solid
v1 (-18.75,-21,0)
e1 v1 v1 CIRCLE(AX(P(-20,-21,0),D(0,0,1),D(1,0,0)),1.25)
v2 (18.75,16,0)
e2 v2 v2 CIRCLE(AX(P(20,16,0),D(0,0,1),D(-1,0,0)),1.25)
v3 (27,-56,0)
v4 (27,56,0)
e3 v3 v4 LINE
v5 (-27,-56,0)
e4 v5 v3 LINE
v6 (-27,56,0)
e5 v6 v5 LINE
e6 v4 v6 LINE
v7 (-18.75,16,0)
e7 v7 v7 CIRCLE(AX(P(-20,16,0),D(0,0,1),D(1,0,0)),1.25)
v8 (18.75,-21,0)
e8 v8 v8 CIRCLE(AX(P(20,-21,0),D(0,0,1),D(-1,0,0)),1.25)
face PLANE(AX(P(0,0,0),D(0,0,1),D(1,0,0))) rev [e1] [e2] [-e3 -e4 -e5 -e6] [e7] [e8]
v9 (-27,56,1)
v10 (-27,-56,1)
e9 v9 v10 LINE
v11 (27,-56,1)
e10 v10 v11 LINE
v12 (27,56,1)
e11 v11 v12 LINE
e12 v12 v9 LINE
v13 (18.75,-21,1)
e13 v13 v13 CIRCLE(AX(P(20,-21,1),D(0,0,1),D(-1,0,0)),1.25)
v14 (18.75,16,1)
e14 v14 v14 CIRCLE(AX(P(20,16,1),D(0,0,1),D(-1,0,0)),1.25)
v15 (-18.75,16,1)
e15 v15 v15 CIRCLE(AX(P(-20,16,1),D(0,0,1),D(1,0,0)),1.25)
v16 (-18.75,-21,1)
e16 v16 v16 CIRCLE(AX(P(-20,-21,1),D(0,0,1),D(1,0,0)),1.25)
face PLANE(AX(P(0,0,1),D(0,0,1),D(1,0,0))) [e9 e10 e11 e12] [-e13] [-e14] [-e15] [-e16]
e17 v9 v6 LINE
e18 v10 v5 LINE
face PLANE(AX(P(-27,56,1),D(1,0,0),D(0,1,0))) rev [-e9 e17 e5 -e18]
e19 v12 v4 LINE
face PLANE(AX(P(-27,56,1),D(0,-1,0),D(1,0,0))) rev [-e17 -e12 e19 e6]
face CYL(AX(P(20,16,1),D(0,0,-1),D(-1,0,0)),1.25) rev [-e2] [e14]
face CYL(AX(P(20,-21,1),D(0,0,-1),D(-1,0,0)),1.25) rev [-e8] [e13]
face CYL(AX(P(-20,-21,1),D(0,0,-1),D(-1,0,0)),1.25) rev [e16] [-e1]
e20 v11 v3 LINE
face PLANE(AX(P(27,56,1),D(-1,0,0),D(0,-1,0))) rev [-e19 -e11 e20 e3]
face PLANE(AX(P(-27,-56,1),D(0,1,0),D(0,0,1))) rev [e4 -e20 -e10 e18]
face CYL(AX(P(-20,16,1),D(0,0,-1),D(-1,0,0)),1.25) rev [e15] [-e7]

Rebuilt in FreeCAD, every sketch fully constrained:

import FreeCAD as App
import Part
import Sketcher


def add_polygon(sketch, points):
    """Adds a closed chain of lines whose ends are joined by coincident constraints."""
    first, n = sketch.GeometryCount, len(points)
    for a, b in zip(points, points[1:] + points[:1]):
        sketch.addGeometry(Part.LineSegment(App.Vector(*a, 0), App.Vector(*b, 0)), False)
    for i in range(n):
        sketch.addConstraint(Sketcher.Constraint("Coincident", first + i, 2, first + (i + 1) % n, 1))

doc = App.newDocument("Part")
body = doc.addObject("PartDesign::Body", "Body")

# Sketch on XY plane
sketch1 = body.newObject("Sketcher::SketchObject", "Sketch")
sketch1.AttachmentSupport = (doc.getObject("XY_Plane"), [""])
sketch1.MapMode = "FlatFace"
add_polygon(sketch1, [(-27, 56), (-27, -56), (27, -56), (27, 56)])  # lines 0-3
sketch1.addGeometry(Part.Circle(App.Vector(-20, -21, 0), App.Vector(0, 0, 1), 1.25), False)  # 4
sketch1.addGeometry(Part.Circle(App.Vector(20, -21, 0), App.Vector(0, 0, 1), 1.25), False)  # 5
sketch1.addGeometry(Part.Circle(App.Vector(-20, 16, 0), App.Vector(0, 0, 1), 1.25), False)  # 6
sketch1.addGeometry(Part.Circle(App.Vector(20, 16, 0), App.Vector(0, 0, 1), 1.25), False)  # 7
sketch1.addConstraint([
    Sketcher.Constraint("Vertical", 0),
    Sketcher.Constraint("Horizontal", 1),
    Sketcher.Constraint("Vertical", 2),
    Sketcher.Constraint("Horizontal", 3),
    Sketcher.Constraint("Equal", 4, 5),
    Sketcher.Constraint("Equal", 5, 6),
    Sketcher.Constraint("Equal", 6, 7),
    Sketcher.Constraint("Symmetric", 0, 2, 2, 2, -1, 1),
    Sketcher.Constraint("Symmetric", 4, 3, 5, 3, -2),
    Sketcher.Constraint("Symmetric", 6, 3, 7, 3, -2),
    Sketcher.Constraint("Vertical", 4, 3, 6, 3),
    Sketcher.Constraint("Diameter", 4, 2.5),
    Sketcher.Constraint("DistanceX", 1, 1, 1, 2, 54.0),
    Sketcher.Constraint("DistanceY", 0, 2, 0, 1, 112.0),
    Sketcher.Constraint("DistanceX", 4, 3, -1, 1, 20.0),
    Sketcher.Constraint("DistanceY", 4, 3, -1, 1, 21.0),
    Sketcher.Constraint("DistanceY", -1, 1, 6, 3, 16.0),
])
pad1 = body.newObject("PartDesign::Pad", "Pad")
pad1.Profile = sketch1
pad1.Length = 1

doc.recompute()
